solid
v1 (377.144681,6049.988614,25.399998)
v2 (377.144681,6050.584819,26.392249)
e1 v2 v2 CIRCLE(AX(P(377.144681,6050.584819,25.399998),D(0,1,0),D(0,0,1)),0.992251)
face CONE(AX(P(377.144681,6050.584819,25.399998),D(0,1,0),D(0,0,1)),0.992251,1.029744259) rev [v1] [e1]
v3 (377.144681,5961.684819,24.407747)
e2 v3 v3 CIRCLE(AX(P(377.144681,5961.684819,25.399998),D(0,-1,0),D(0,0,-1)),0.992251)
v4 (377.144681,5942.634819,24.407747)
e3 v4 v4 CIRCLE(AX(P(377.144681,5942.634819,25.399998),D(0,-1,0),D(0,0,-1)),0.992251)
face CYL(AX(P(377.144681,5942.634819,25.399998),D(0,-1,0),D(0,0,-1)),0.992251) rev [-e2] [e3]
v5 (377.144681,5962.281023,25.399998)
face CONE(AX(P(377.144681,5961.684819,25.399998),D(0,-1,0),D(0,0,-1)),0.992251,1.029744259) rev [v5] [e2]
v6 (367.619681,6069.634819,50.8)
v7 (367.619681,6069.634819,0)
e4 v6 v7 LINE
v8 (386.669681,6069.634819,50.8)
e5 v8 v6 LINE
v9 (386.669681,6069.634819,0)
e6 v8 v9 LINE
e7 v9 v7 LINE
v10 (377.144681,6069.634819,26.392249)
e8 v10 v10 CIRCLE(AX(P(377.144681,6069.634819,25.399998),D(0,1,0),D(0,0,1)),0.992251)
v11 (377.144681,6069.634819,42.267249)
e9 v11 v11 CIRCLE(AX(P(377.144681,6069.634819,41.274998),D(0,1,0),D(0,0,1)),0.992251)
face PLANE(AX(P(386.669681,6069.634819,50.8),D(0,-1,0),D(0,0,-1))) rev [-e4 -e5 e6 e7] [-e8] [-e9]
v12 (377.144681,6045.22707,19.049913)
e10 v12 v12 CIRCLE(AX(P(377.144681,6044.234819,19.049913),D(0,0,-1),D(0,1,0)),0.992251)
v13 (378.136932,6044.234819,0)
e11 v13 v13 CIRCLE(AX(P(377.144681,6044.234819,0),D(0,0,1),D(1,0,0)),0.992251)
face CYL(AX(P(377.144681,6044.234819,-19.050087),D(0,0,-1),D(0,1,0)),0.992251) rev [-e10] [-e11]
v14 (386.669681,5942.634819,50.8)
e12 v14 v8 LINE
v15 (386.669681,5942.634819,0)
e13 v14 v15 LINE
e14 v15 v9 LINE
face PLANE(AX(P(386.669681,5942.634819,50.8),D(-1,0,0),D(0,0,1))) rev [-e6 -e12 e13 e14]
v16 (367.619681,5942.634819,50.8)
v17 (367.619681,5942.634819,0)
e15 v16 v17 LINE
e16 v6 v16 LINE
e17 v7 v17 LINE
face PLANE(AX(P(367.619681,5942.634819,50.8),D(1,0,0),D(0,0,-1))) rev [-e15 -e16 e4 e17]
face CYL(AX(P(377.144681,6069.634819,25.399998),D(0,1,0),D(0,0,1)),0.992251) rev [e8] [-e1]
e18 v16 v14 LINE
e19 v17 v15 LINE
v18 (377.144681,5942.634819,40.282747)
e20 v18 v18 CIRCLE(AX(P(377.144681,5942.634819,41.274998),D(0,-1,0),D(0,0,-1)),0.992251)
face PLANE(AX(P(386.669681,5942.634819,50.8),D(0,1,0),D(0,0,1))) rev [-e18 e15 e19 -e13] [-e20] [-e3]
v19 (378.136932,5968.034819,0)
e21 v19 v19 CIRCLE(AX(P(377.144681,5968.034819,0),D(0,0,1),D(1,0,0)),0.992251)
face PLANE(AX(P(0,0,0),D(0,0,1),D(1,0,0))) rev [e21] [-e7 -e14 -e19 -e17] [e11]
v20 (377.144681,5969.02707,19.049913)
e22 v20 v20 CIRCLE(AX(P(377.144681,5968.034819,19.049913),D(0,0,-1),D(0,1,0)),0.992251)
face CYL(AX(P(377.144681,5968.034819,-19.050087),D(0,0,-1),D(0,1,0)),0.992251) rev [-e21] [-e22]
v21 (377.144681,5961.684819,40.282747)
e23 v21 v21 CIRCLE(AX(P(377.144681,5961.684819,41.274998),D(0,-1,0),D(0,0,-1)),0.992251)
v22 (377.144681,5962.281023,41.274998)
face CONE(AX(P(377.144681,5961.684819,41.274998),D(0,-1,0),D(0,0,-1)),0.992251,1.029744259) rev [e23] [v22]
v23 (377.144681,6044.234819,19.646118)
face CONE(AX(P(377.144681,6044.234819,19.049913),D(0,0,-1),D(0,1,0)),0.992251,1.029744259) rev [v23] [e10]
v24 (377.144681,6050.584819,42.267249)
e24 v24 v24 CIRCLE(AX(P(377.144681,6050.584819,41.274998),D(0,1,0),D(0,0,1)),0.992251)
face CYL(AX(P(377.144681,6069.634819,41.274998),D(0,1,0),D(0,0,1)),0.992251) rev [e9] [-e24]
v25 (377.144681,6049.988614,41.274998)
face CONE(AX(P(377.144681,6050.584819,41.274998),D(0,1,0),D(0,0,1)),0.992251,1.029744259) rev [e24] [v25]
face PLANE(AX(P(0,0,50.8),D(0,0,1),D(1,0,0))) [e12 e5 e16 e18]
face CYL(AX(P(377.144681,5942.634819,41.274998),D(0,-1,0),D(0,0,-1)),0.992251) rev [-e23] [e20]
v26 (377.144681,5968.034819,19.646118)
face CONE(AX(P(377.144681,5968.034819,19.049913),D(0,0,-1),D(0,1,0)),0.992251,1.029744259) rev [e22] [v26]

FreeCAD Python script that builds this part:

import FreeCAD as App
import Part
import Sketcher
from FreeCAD import Vector
Q = App.Units.Quantity


def add_polygon(sketch, points):
    """Adds a closed chain of lines whose ends are joined by coincident constraints."""
    first, n = sketch.GeometryCount, len(points)
    for a, b in zip(points, points[1:] + points[:1]):
        sketch.addGeometry(Part.LineSegment(App.Vector(*a, 0), App.Vector(*b, 0)), False)
    for i in range(n):
        sketch.addConstraint(Sketcher.Constraint("Coincident", first + i, 2, first + (i + 1) % n, 1))

doc = App.newDocument("Part")
body = doc.addObject("PartDesign::Body", "Body")

sketch1 = body.newObject("Sketcher::SketchObject", "Sketch")
sketch1.AttachmentSupport = (doc.getObject("XY_Plane"), [""])
sketch1.MapMode = "FlatFace"
add_polygon(sketch1, [(367.619681, 6069.634819), (367.619681, 5942.634819), (386.669681, 5942.634819), (386.669681, 6069.634819)])
sketch1.addConstraint([
    Sketcher.Constraint("Vertical", 0),
    Sketcher.Constraint("Horizontal", 1),
    Sketcher.Constraint("Vertical", 2),
    Sketcher.Constraint("Horizontal", 3),
    Sketcher.Constraint("DistanceY", 0, 2, 0, 1, Q("5 in")),
    Sketcher.Constraint("DistanceX", 1, 1, 1, 2, Q("0.75 in")),
    Sketcher.Constraint("DistanceX", -1, 1, 0, 2, Q("367.619681 mm")),
    Sketcher.Constraint("DistanceY", -1, 1, 0, 2, Q("5942.634819 mm")),
])
pad1 = body.newObject("PartDesign::Pad", "Pad")
pad1.Profile = sketch1
pad1.Length = Q("2 in")

sketch2 = body.newObject("Sketcher::SketchObject", "Sketch001")
sketch2.AttachmentSupport = (doc.getObject("XY_Plane"), [""])
sketch2.MapMode = "FlatFace"
sketch2.AttachmentOffset = App.Placement(Vector(0, 0, -19.050088), App.Rotation())
sketch2.addGeometry([
    Part.Circle(Vector(397.735283, 6980.859811, 0), Vector(0, 0, 1), 0.992251),
    Part.Circle(Vector(302.485283, 6980.859811, 0), Vector(0, 0, 1), 0.992251),
    Part.Circle(Vector(207.235283, 6980.859811, 0), Vector(0, 0, 1), 0.992251),
    Part.Circle(Vector(211.421034, 6952.740757, 0), Vector(0, 0, 1), 0.992251),
    Part.Circle(Vector(211.421034, 6800.340757, 0), Vector(0, 0, 1), 0.992251),
    Part.Circle(Vector(211.421034, 6647.940757, 0), Vector(0, 0, 1), 0.992251),
    Part.Circle(Vector(201.312397, 6619.073662, 0), Vector(0, 0, 1), 0.992251),
    Part.Circle(Vector(391.623342, 6619.073572, 0), Vector(0, 0, 1), 0.992251),
    Part.Circle(Vector(401.148342, 6647.940757, 0), Vector(0, 0, 1), 0.992251),
    Part.Circle(Vector(401.148342, 6800.340757, 0), Vector(0, 0, 1), 0.992251),
    Part.Circle(Vector(401.148342, 6952.740757, 0), Vector(0, 0, 1), 0.992251),
    Part.Circle(Vector(394.511652, 6599.275619, 0), Vector(0, 0, 1), 0.992251),
    Part.Circle(Vector(204.011652, 6599.275619, 0), Vector(0, 0, 1), 0.992251),
    Part.Circle(Vector(224.121034, 6551.942719, 0), Vector(0, 0, 1), 0.992251),
    Part.Circle(Vector(224.121034, 6475.742719, 0), Vector(0, 0, 1), 0.992251),
    Part.Circle(Vector(201.106948, 6428.409819, 0), Vector(0, 0, 1), 0.992251),
    Part.Circle(Vector(296.356948, 6428.409819, 0), Vector(0, 0, 1), 0.992251),
    Part.Circle(Vector(391.606948, 6428.409819, 0), Vector(0, 0, 1), 0.992251),
    Part.Circle(Vector(362.977347, 6475.742719, 0), Vector(0, 0, 1), 0.992251),
    Part.Circle(Vector(362.977347, 6551.942719, 0), Vector(0, 0, 1), 0.992251),
    Part.Circle(Vector(388.377347, 6383.959819, 0), Vector(0, 0, 1), 0.992251),
    Part.Circle(Vector(388.377347, 6307.759819, 0), Vector(0, 0, 1), 0.992251),
    Part.Circle(Vector(388.799191, 6263.30982, 0), Vector(0, 0, 1), 0.992251),
    Part.Circle(Vector(293.549191, 6263.30982, 0), Vector(0, 0, 1), 0.992251),
    Part.Circle(Vector(198.299191, 6263.30982, 0), Vector(0, 0, 1), 0.992251),
    Part.Circle(Vector(198.721034, 6307.759819, 0), Vector(0, 0, 1), 0.992251),
    Part.Circle(Vector(198.721034, 6383.959819, 0), Vector(0, 0, 1), 0.992251),
    Part.Circle(Vector(351.744681, 6209.334819, 0), Vector(0, 0, 1), 0.992251),
    Part.Circle(Vector(351.744681, 6133.134819, 0), Vector(0, 0, 1), 0.992251),
    Part.Circle(Vector(366.738553, 6079.159819, 0), Vector(0, 0, 1), 0.992251),
    Part.Circle(Vector(377.144681, 6079.160297, 0), Vector(0, 0, 1), 0.992251),
    Part.Circle(Vector(377.144681, 6044.234819, 0), Vector(0, 0, 1), 0.992251),
    Part.Circle(Vector(377.144681, 5968.034819, 0), Vector(0, 0, 1), 0.992251),
    Part.Circle(Vector(377.144681, 5933.109819, 0), Vector(0, 0, 1), 0.992251),
    Part.Circle(Vector(198.299191, 5933.109819, 0), Vector(0, 0, 1), 0.992251),
    Part.Circle(Vector(284.757858, 5933.109819, 0), Vector(0, 0, 1), 0.992251),
], False)
sketch2.addConstraint([
    Sketcher.Constraint("Equal", 0, 1),
    Sketcher.Constraint("Equal", 1, 2),
    Sketcher.Constraint("Equal", 2, 3),
    Sketcher.Constraint("Equal", 3, 4),
    Sketcher.Constraint("Equal", 4, 5),
    Sketcher.Constraint("Equal", 5, 6),
    Sketcher.Constraint("Equal", 6, 7),
    Sketcher.Constraint("Equal", 7, 8),
    Sketcher.Constraint("Equal", 8, 9),
    Sketcher.Constraint("Equal", 9, 10),
    Sketcher.Constraint("Equal", 10, 11),
    Sketcher.Constraint("Equal", 11, 12),
    Sketcher.Constraint("Equal", 12, 13),
    Sketcher.Constraint("Equal", 13, 14),
    Sketcher.Constraint("Equal", 14, 15),
    Sketcher.Constraint("Equal", 15, 16),
    Sketcher.Constraint("Equal", 16, 17),
    Sketcher.Constraint("Equal", 17, 18),
    Sketcher.Constraint("Equal", 18, 19),
    Sketcher.Constraint("Equal", 19, 20),
    Sketcher.Constraint("Equal", 20, 21),
    Sketcher.Constraint("Equal", 21, 22),
    Sketcher.Constraint("Equal", 22, 23),
    Sketcher.Constraint("Equal", 23, 24),
    Sketcher.Constraint("Equal", 24, 25),
    Sketcher.Constraint("Equal", 25, 26),
    Sketcher.Constraint("Equal", 26, 27),
    Sketcher.Constraint("Equal", 27, 28),
    Sketcher.Constraint("Equal", 28, 29),
    Sketcher.Constraint("Equal", 29, 30),
    Sketcher.Constraint("Equal", 30, 31),
    Sketcher.Constraint("Equal", 31, 32),
    Sketcher.Constraint("Equal", 32, 33),
    Sketcher.Constraint("Equal", 33, 34),
    Sketcher.Constraint("Equal", 34, 35),
    Sketcher.Constraint("Horizontal", 0, 3, 1, 3),
    Sketcher.Constraint("Horizontal", 1, 3, 2, 3),
    Sketcher.Constraint("Horizontal", 5, 3, 8, 3),
    Sketcher.Constraint("Horizontal", 4, 3, 9, 3),
    Sketcher.Constraint("Horizontal", 3, 3, 10, 3),
    Sketcher.Constraint("Horizontal", 11, 3, 12, 3),
    Sketcher.Constraint("Horizontal", 15, 3, 16, 3),
    Sketcher.Constraint("Horizontal", 16, 3, 17, 3),
    Sketcher.Constraint("Horizontal", 14, 3, 18, 3),
    Sketcher.Constraint("Horizontal", 13, 3, 19, 3),
    Sketcher.Constraint("Horizontal", 22, 3, 23, 3),
    Sketcher.Constraint("Horizontal", 23, 3, 24, 3),
    Sketcher.Constraint("Horizontal", 21, 3, 25, 3),
    Sketcher.Constraint("Horizontal", 20, 3, 26, 3),
    Sketcher.Constraint("Horizontal", 33, 3, 34, 3),
    Sketcher.Constraint("Horizontal", 34, 3, 35, 3),
    Sketcher.Constraint("Vertical", 3, 3, 4, 3),
    Sketcher.Constraint("Vertical", 4, 3, 5, 3),
    Sketcher.Constraint("Vertical", 8, 3, 9, 3),
    Sketcher.Constraint("Vertical", 9, 3, 10, 3),
    Sketcher.Constraint("Vertical", 13, 3, 14, 3),
    Sketcher.Constraint("Vertical", 18, 3, 19, 3),
    Sketcher.Constraint("Vertical", 20, 3, 21, 3),
    Sketcher.Constraint("Vertical", 25, 3, 26, 3),
    Sketcher.Constraint("Vertical", 27, 3, 28, 3),
    Sketcher.Constraint("Vertical", 30, 3, 31, 3),
    Sketcher.Constraint("Vertical", 31, 3, 32, 3),
    Sketcher.Constraint("Vertical", 32, 3, 33, 3),
    Sketcher.Constraint("Vertical", 24, 3, 34, 3),
    Sketcher.Constraint("DistanceY", 4, 3, 3, 3, Q("6 in")),
    Sketcher.Constraint("DistanceY", 5, 3, 4, 3, Q("6 in")),
    Sketcher.Constraint("DistanceY", 14, 3, 13, 3, Q("3 in")),
    Sketcher.Constraint("DistanceX", 18, 3, 20, 3, Q("1 in")),
    Sketcher.Constraint("DistanceY", 21, 3, 20, 3, Q("3 in")),
    Sketcher.Constraint("DistanceX", 25, 3, 14, 3, Q("1 in")),
    Sketcher.Constraint("DistanceY", 28, 3, 27, 3, Q("3 in")),
    Sketcher.Constraint("DistanceY", 29, 3, 21, 3, Q("9 in")),
    Sketcher.Constraint("DistanceX", 28, 3, 30, 3, Q("1 in")),
    Sketcher.Constraint("DistanceY", 32, 3, 31, 3, Q("3 in")),
    Sketcher.Constraint("DistanceX", 2, 3, 0, 3, Q("7.5 in")),
    Sketcher.Constraint("DistanceX", 12, 3, 11, 3, Q("7.5 in")),
    Sketcher.Constraint("DistanceX", 5, 3, 13, 3, Q("0.5 in")),
    Sketcher.Constraint("DistanceX", 15, 3, 17, 3, Q("7.5 in")),
    Sketcher.Constraint("DistanceY", 22, 3, 17, 3, Q("6.5 in")),
    Sketcher.Constraint("DistanceX", 24, 3, 22, 3, Q("7.5 in")),
    Sketcher.Constraint("DistanceY", 31, 3, 28, 3, Q("3.5 in")),
    Sketcher.Constraint("DistanceX", 1, 3, 0, 3, Q("3.75 in")),
    Sketcher.Constraint("DistanceX", 15, 3, 16, 3, Q("3.75 in")),
    Sketcher.Constraint("DistanceY", 20, 3, 17, 3, Q("1.75 in")),
    Sketcher.Constraint("DistanceX", 23, 3, 22, 3, Q("3.75 in")),
    Sketcher.Constraint("DistanceY", 33, 3, 29, 3, Q("5.75 in")),
    Sketcher.Constraint("DistanceX", 7, 3, 8, 3, Q("0.375 in")),
    Sketcher.Constraint("DistanceY", 15, 3, 12, 3, Q("6.727 in")),
    Sketcher.Constraint("DistanceY", 27, 3, 22, 3, Q("2.125 in")),
    Sketcher.Constraint("Diameter", 0, Q("1.984502 mm")),
    Sketcher.Constraint("DistanceY", 6, 3, 5, 3, Q("1.1364998 in")),
    Sketcher.Constraint("DistanceY", 13, 3, 12, 3, Q("1.8635 in")),
    Sketcher.Constraint("DistanceX", 18, 3, 17, 3, Q("28.629601 mm")),
    Sketcher.Constraint("DistanceY", -1, 1, 0, 3, Q("6980.859811 mm")),
    Sketcher.Constraint("DistanceX", -1, 1, 7, 3, Q("391.623342 mm")),
    Sketcher.Constraint("DistanceY", -1, 1, 7, 3, Q("6619.073572 mm")),
    Sketcher.Constraint("DistanceY", -1, 1, 11, 3, Q("6599.275619 mm")),
    Sketcher.Constraint("DistanceX", -1, 1, 22, 3, Q("388.799191 mm")),
    Sketcher.Constraint("DistanceX", -1, 1, 27, 3, Q("351.744681 mm")),
    Sketcher.Constraint("DistanceX", 2, 3, 3, 3, Q("4.185752 mm")),
    Sketcher.Constraint("DistanceY", 6, 3, 2, 3, Q("361.786149 mm")),
    Sketcher.Constraint("DistanceX", 7, 3, 0, 3, Q("6.111941 mm")),
    Sketcher.Constraint("DistanceX", 7, 3, 11, 3, Q("2.88831 mm")),
    Sketcher.Constraint("DistanceX", 15, 3, 6, 3, Q("0.205449 mm")),
    Sketcher.Constraint("DistanceX", 28, 3, 29, 3, Q("14.993872 mm")),
    Sketcher.Constraint("DistanceY", 29, 3, 30, 3, Q("0.000478 mm")),
    Sketcher.Constraint("DistanceX", -1, 1, 6, 3, Q("201.312397 mm")),
    Sketcher.Constraint("DistanceX", -1, 1, 35, 3, Q("284.757858 mm")),
])
doc.recompute()
hole = body.newObject("PartDesign::Hole", "Hole")
hole.Profile = sketch2
hole.ThreadType = "None"
hole.Diameter = 1.984502
hole.DepthType = "Dimension"
hole.Depth = Q("1.5 in")
hole.DrillPoint = "Angled"
hole.DrillPointAngle = 118
hole.Reversed = True

sketch3 = body.newObject("Sketcher::SketchObject", "Sketch002")
sketch3.AttachmentSupport = (doc.getObject("XZ_Plane"), [""])
sketch3.MapMode = "FlatFace"
sketch3.AttachmentOffset = App.Placement(Vector(0, 0, -5942.634819), App.Rotation())
sketch3.addGeometry([
    Part.Circle(Vector(377.144681, 41.274998, 0), Vector(0, 0, 1), 0.992251),
    Part.Circle(Vector(377.144681, 25.399998, 0), Vector(0, 0, 1), 0.992251),
], False)
sketch3.addConstraint([
    Sketcher.Constraint("Equal", 0, 1),
    Sketcher.Constraint("Vertical", 0, 3, 1, 3),
    Sketcher.Constraint("DistanceY", -1, 1, 1, 3, Q("0.9999999 in")),
    Sketcher.Constraint("DistanceY", -1, 1, 0, 3, Q("1.6249999 in")),
    Sketcher.Constraint("Diameter", 0, Q("1.984502 mm")),
    Sketcher.Constraint("DistanceX", -1, 1, 0, 3, Q("377.144681 mm")),
])
doc.recompute()
hole2 = body.newObject("PartDesign::Hole", "Hole001")
hole2.Profile = sketch3
hole2.ThreadType = "None"
hole2.Diameter = 1.984502
hole2.DepthType = "Dimension"
hole2.Depth = Q("0.75 in")
hole2.DrillPoint = "Angled"
hole2.DrillPointAngle = 118

sketch4 = body.newObject("Sketcher::SketchObject", "Sketch003")
sketch4.AttachmentSupport = (doc.getObject("XZ_Plane"), [""])
sketch4.MapMode = "FlatFace"
sketch4.AttachmentOffset = App.Placement(Vector(0, 0, -6069.634819), App.Rotation())
sketch4.addGeometry([
    Part.Circle(Vector(377.144681, 41.274998, 0), Vector(0, 0, 1), 0.992251),
    Part.Circle(Vector(377.144681, 25.399998, 0), Vector(0, 0, 1), 0.992251),
], False)
sketch4.addConstraint([
    Sketcher.Constraint("Equal", 0, 1),
    Sketcher.Constraint("Vertical", 0, 3, 1, 3),
    Sketcher.Constraint("DistanceY", -1, 1, 1, 3, Q("0.9999999 in")),
    Sketcher.Constraint("DistanceY", -1, 1, 0, 3, Q("1.6249999 in")),
    Sketcher.Constraint("Diameter", 0, Q("1.984502 mm")),
    Sketcher.Constraint("DistanceX", -1, 1, 0, 3, Q("377.144681 mm")),
])
doc.recompute()
hole3 = body.newObject("PartDesign::Hole", "Hole002")
hole3.Profile = sketch4
hole3.ThreadType = "None"
hole3.Diameter = 1.984502
hole3.DepthType = "Dimension"
hole3.Depth = Q("0.75 in")
hole3.DrillPoint = "Angled"
hole3.DrillPointAngle = 118
hole3.Reversed = True

doc.recompute()
